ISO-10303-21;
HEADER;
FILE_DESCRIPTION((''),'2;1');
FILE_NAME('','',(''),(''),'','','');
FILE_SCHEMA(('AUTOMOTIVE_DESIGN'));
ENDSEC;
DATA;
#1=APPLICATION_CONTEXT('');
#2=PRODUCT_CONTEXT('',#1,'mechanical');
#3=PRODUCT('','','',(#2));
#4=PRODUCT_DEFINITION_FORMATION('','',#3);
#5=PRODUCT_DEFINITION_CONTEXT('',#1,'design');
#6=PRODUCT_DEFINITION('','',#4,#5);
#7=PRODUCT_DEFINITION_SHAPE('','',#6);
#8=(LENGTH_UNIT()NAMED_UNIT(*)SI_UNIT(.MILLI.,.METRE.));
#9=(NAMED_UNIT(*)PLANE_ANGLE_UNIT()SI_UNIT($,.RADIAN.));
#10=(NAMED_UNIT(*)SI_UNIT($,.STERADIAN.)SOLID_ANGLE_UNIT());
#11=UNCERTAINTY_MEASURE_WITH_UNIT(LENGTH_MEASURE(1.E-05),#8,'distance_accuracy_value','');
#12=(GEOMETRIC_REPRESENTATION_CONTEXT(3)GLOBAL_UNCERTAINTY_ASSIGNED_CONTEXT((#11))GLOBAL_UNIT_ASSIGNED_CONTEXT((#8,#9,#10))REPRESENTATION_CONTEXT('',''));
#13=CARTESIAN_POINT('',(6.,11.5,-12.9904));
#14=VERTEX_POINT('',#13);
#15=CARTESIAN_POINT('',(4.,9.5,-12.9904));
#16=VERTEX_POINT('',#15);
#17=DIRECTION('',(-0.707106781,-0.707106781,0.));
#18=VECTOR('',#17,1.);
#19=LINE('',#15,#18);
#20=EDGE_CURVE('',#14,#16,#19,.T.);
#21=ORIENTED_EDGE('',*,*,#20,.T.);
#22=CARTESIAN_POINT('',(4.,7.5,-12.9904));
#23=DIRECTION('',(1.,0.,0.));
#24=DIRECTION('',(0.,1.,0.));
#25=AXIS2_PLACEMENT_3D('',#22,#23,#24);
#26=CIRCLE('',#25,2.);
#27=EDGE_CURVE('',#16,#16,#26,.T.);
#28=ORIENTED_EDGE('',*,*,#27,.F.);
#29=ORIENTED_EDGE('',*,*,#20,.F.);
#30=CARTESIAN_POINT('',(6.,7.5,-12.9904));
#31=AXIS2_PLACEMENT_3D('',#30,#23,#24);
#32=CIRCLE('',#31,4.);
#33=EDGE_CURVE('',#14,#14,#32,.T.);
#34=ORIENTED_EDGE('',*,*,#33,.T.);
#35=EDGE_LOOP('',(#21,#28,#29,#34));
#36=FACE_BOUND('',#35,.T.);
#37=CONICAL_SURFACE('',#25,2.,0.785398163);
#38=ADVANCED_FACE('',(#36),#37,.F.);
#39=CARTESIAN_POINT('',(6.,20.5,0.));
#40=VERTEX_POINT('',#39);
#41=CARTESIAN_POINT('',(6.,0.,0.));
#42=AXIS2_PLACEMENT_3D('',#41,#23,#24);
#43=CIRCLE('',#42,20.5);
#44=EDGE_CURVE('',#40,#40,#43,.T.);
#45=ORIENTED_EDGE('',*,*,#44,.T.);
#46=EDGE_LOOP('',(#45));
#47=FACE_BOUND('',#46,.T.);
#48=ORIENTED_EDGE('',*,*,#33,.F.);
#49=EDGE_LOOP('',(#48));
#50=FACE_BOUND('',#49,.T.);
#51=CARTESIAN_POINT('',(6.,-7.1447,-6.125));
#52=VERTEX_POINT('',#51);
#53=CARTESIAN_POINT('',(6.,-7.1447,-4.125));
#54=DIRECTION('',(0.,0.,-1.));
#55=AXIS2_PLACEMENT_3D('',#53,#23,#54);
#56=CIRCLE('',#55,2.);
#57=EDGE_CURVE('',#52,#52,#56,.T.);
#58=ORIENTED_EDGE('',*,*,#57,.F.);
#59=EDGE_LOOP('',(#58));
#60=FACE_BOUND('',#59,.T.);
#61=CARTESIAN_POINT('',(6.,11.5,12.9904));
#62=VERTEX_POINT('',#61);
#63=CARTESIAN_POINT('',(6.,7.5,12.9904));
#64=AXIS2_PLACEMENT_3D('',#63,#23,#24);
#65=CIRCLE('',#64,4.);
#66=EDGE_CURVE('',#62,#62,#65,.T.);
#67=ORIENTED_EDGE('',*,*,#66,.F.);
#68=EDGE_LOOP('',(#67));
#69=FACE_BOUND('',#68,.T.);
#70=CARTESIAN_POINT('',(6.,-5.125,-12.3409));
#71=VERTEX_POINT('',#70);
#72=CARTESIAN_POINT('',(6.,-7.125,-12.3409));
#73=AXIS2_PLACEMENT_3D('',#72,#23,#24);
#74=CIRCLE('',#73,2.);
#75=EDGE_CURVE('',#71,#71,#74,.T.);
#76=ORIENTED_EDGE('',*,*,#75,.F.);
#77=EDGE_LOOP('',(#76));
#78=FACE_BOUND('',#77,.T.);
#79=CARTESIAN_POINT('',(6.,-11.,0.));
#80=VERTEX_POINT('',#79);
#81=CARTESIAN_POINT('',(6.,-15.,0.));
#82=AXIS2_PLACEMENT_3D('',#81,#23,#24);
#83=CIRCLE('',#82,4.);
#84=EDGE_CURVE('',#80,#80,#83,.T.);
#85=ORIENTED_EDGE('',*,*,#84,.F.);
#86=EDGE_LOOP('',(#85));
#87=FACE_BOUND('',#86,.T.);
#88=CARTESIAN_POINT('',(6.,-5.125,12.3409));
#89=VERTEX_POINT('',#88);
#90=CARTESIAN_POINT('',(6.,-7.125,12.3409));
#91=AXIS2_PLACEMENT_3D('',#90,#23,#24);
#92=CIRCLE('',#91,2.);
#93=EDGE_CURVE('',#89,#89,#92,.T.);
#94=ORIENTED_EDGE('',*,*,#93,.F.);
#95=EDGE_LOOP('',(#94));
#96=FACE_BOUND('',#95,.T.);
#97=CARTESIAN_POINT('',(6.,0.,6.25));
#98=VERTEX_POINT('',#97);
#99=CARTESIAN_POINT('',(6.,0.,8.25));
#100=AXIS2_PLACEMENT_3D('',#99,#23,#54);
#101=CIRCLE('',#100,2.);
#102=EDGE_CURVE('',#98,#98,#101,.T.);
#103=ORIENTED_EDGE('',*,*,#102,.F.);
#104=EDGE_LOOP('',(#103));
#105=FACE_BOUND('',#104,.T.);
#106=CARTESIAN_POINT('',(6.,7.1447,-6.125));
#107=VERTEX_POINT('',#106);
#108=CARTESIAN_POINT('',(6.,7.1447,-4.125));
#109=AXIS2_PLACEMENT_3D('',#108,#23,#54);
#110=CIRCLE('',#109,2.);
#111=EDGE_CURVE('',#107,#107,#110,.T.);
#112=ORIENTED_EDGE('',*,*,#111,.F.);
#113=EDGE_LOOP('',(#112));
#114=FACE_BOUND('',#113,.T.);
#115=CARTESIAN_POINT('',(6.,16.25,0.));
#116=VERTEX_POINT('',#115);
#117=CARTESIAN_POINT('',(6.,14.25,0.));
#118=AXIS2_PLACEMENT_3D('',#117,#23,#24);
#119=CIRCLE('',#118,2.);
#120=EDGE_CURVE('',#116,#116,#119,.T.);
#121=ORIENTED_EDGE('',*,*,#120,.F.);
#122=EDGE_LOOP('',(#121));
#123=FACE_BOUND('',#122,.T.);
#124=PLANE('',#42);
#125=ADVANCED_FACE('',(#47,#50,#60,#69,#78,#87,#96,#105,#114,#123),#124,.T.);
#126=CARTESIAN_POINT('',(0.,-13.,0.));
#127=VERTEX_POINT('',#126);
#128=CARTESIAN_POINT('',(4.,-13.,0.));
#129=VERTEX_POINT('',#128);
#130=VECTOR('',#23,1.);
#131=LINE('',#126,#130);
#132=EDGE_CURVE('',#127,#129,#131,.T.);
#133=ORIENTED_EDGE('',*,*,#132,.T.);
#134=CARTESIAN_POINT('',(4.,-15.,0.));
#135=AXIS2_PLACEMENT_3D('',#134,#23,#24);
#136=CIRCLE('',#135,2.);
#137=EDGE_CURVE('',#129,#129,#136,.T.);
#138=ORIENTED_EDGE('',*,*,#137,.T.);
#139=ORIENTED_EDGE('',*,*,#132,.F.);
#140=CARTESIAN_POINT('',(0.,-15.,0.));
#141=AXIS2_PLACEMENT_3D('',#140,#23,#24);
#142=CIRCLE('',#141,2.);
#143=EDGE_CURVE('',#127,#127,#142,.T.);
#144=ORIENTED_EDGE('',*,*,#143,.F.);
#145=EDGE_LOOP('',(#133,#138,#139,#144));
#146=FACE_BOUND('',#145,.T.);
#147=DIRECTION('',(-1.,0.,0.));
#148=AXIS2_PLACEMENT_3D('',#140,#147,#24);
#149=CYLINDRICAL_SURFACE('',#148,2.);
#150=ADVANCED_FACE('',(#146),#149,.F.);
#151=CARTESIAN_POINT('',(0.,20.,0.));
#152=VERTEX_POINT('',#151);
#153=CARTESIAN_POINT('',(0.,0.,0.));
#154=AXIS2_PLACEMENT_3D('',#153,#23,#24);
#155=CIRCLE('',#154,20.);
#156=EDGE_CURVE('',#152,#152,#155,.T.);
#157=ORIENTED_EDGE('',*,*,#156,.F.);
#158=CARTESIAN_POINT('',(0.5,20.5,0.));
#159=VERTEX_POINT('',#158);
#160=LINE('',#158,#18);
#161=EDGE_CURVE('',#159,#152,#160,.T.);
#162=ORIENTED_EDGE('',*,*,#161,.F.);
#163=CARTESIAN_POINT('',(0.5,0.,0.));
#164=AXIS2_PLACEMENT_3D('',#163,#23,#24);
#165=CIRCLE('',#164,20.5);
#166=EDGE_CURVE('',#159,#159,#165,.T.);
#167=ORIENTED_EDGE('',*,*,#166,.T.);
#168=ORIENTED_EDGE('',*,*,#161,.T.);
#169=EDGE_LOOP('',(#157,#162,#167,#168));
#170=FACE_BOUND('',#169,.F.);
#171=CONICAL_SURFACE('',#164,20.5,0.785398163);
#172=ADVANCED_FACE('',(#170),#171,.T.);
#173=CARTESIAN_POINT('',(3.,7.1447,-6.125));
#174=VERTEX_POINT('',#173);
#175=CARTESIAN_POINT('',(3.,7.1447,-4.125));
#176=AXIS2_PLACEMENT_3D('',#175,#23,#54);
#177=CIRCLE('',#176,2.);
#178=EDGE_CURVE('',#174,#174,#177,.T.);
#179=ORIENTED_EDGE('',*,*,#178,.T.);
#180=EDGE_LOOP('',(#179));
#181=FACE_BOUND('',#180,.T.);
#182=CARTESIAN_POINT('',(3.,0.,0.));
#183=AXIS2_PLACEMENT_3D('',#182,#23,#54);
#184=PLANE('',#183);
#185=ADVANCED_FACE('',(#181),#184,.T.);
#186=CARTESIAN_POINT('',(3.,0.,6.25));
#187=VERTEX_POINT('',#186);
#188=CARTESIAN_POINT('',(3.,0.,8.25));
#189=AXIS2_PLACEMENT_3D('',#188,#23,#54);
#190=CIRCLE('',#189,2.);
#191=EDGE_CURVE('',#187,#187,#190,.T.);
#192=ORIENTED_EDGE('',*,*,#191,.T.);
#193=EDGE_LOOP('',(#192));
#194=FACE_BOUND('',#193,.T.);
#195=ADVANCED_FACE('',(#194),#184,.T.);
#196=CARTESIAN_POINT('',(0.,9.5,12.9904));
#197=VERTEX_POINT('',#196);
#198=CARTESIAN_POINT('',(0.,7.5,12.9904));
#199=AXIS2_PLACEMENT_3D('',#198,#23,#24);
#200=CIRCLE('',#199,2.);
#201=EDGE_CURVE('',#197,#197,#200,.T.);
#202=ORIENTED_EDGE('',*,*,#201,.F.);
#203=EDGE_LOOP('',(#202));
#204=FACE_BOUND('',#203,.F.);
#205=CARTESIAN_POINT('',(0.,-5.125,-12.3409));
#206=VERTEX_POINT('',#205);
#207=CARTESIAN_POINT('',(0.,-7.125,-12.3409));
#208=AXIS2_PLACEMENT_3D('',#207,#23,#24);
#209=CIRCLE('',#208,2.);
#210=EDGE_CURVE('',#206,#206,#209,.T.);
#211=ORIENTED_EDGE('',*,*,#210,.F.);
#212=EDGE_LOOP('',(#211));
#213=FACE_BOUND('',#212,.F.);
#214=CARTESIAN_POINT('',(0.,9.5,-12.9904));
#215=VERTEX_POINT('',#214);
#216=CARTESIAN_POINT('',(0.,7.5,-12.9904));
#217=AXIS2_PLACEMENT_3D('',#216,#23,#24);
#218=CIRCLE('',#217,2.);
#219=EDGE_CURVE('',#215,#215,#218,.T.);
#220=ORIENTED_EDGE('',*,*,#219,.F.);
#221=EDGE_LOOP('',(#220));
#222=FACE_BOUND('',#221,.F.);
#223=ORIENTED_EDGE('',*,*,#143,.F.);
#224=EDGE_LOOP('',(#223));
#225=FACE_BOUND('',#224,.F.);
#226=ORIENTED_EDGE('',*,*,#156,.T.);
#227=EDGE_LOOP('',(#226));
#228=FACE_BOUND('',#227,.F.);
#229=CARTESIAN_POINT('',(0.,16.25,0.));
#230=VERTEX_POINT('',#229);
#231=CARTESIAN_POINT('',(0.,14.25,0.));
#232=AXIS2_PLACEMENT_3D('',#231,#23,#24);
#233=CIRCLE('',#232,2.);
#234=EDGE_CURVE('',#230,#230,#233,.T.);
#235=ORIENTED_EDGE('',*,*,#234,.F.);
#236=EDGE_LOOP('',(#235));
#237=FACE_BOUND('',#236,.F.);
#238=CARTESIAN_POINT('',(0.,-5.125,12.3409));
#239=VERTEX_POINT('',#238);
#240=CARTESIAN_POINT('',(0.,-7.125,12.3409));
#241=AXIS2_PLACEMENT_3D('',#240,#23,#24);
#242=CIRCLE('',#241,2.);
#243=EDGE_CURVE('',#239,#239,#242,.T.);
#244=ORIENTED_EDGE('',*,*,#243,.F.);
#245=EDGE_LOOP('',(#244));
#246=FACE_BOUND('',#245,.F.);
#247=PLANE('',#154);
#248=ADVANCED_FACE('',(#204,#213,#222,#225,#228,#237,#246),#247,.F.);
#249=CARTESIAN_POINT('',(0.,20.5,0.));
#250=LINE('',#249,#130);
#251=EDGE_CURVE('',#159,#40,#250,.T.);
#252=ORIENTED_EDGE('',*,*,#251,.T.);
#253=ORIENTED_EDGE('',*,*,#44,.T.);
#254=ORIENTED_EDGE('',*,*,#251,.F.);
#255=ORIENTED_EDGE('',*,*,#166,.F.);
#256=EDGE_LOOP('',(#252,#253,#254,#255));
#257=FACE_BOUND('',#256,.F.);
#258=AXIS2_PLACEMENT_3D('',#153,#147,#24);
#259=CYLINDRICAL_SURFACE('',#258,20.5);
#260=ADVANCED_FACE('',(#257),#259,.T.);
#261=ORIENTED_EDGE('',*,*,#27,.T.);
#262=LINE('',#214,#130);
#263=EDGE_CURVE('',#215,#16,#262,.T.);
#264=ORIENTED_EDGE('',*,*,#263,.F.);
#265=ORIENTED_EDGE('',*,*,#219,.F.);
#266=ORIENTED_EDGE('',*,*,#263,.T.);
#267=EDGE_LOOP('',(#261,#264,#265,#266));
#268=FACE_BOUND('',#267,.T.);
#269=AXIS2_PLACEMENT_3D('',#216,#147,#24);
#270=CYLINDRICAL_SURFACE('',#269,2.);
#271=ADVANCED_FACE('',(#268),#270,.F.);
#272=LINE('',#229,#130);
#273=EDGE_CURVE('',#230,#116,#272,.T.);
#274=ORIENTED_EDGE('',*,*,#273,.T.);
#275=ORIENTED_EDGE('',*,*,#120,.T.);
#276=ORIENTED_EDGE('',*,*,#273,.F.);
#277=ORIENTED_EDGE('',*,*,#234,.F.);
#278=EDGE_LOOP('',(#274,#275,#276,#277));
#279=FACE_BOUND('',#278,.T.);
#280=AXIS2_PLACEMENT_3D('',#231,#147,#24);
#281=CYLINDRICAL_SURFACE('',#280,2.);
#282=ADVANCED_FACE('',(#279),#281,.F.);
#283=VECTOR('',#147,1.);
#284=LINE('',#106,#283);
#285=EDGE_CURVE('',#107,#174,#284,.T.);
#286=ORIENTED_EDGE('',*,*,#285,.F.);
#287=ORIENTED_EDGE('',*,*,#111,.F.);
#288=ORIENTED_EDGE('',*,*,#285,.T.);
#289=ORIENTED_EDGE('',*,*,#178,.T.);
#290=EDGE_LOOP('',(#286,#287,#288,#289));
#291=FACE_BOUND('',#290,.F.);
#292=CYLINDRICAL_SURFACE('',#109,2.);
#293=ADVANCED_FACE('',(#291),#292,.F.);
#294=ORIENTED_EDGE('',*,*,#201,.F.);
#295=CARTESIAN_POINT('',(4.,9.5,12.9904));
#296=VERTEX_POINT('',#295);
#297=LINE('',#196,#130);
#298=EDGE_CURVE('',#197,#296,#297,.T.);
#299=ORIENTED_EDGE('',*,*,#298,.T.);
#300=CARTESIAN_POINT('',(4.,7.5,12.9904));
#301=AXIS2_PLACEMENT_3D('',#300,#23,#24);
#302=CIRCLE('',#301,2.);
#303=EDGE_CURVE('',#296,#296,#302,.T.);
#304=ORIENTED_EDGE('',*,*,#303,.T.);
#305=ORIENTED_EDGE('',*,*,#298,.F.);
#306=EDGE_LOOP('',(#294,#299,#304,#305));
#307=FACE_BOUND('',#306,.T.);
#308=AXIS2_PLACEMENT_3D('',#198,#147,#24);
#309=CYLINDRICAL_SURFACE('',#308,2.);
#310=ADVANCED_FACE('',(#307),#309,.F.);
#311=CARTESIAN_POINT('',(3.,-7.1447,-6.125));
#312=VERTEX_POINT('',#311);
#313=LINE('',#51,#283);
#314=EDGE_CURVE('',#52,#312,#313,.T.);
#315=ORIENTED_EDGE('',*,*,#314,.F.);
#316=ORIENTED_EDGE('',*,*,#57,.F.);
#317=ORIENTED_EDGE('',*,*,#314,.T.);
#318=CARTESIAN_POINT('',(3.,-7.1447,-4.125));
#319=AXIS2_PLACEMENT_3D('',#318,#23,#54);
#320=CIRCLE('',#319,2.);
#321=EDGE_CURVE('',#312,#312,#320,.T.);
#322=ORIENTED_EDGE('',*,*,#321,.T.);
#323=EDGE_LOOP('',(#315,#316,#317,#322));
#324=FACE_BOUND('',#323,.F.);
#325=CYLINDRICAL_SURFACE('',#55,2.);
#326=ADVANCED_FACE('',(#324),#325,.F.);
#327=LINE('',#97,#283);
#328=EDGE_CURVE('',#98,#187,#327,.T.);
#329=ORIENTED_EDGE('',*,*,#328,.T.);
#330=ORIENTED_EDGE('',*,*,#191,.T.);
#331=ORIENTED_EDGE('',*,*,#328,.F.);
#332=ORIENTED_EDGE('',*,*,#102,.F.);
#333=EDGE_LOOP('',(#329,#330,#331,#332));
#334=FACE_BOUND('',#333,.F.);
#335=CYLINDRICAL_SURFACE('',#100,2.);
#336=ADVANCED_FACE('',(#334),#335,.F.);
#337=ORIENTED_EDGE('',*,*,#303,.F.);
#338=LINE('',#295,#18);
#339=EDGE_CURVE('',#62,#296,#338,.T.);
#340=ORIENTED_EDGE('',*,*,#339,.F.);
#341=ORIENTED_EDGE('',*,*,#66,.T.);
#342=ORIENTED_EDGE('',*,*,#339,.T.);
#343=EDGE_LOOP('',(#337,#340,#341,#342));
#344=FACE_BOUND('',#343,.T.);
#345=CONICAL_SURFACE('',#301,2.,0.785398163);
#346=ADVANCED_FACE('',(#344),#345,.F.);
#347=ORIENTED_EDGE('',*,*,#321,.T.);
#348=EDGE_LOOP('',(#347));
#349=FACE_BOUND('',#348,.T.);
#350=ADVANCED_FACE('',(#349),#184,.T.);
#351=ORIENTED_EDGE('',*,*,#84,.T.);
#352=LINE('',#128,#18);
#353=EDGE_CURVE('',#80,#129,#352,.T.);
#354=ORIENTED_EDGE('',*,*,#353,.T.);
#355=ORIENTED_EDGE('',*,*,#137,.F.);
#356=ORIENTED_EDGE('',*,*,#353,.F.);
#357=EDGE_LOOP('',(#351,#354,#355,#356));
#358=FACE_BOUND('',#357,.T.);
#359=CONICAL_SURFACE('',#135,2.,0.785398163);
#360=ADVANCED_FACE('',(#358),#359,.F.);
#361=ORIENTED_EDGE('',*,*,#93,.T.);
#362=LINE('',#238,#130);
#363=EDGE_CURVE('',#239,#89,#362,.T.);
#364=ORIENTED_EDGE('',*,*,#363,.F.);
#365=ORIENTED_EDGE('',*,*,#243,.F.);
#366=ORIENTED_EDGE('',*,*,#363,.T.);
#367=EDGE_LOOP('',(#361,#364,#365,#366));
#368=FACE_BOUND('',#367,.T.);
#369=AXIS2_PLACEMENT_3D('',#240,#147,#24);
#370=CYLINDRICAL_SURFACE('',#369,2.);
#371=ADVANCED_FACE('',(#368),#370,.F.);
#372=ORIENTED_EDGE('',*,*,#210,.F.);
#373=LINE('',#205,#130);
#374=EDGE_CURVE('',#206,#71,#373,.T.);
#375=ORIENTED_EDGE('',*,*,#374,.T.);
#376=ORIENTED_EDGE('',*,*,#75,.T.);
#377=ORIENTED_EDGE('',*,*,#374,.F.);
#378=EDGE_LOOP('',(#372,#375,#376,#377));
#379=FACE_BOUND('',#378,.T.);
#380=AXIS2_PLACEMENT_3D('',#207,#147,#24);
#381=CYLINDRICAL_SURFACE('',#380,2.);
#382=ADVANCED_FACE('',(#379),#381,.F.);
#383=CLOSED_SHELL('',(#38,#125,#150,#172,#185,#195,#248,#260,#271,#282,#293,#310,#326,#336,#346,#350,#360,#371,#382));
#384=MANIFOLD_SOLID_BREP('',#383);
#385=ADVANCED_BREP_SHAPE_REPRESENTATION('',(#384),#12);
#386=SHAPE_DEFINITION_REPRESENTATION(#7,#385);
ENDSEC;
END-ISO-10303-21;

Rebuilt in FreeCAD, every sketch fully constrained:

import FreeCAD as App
import Part
import Sketcher


def edges_at(feature, points):
    """Names of the edges that pass closest to the given points."""
    edges = feature.Shape.Edges
    near = lambda p: min(range(len(edges)), key=lambda i: edges[i].distToShape(Part.Vertex(*p))[0])
    return sorted({f"Edge{near(p) + 1}" for p in points})

doc = App.newDocument("Part")
body = doc.addObject("PartDesign::Body", "Body")

sketch1 = body.newObject("Sketcher::SketchObject", "Sketch")
sketch1.AttachmentSupport = (doc.getObject("YZ_Plane"), [""])
sketch1.MapMode = "FlatFace"
sketch1.addGeometry(Part.Circle(App.Vector(0, 0, 0), App.Vector(0, 0, 1), 20.5), False)
sketch1.addGeometry(Part.Circle(App.Vector(-7.125, -12.3409, 0), App.Vector(0, 0, 1), 2), False)
sketch1.addGeometry(Part.Circle(App.Vector(7.5, -12.9904, 0), App.Vector(0, 0, 1), 2), False)
sketch1.addGeometry(Part.Circle(App.Vector(-15, 0, 0), App.Vector(0, 0, 1), 2), False)
sketch1.addGeometry(Part.Circle(App.Vector(-7.125, 12.3409, 0), App.Vector(0, 0, 1), 2), False)
sketch1.addGeometry(Part.Circle(App.Vector(14.25, 0, 0), App.Vector(0, 0, 1), 2), False)
sketch1.addGeometry(Part.Circle(App.Vector(7.5, 12.9904, 0), App.Vector(0, 0, 1), 2), False)
sketch1.addConstraint(Sketcher.Constraint("Coincident", 0, 3, -1, 1))
sketch1.addConstraint(Sketcher.Constraint("Equal", 1, 2))
sketch1.addConstraint(Sketcher.Constraint("Equal", 2, 3))
sketch1.addConstraint(Sketcher.Constraint("Equal", 3, 4))
sketch1.addConstraint(Sketcher.Constraint("Equal", 4, 5))
sketch1.addConstraint(Sketcher.Constraint("Equal", 5, 6))
sketch1.addConstraint(Sketcher.Constraint("Symmetric", 1, 3, 4, 3, -1))
sketch1.addConstraint(Sketcher.Constraint("Symmetric", 2, 3, 6, 3, -1))
sketch1.addConstraint(Sketcher.Constraint("PointOnObject", 3, 3, -1))
sketch1.addConstraint(Sketcher.Constraint("PointOnObject", 5, 3, -1))
sketch1.addConstraint(Sketcher.Constraint("Diameter", 0, 41.0))
sketch1.addConstraint(Sketcher.Constraint("Diameter", 1, 4.0))
sketch1.addConstraint(Sketcher.Constraint("DistanceX", 3, 3, -1, 1, 15.0))
sketch1.addConstraint(Sketcher.Constraint("DistanceX", -1, 1, 2, 3, 7.5))
sketch1.addConstraint(Sketcher.Constraint("DistanceX", -1, 1, 5, 3, 14.25))
sketch1.addConstraint(Sketcher.Constraint("DistanceX", 1, 3, -1, 1, 7.125))
sketch1.addConstraint(Sketcher.Constraint("DistanceY", 1, 3, -1, 1, 12.341))
sketch1.addConstraint(Sketcher.Constraint("DistanceY", 2, 3, -1, 1, 12.9904))
pad1 = body.newObject("PartDesign::Pad", "Pad")
pad1.Profile = sketch1
pad1.Length = 6
doc.recompute()

chamfer = body.newObject("PartDesign::Chamfer", "Chamfer")
chamfer.Base = (pad1, edges_at(pad1, [(0, -20.5, 0)]))
chamfer.Size = 0.5
doc.recompute()

chamfer2 = body.newObject("PartDesign::Chamfer", "Chamfer001")
chamfer2.Base = (chamfer, edges_at(chamfer, [(6, 5.5, 12.99), (6, 5.5, -12.99), (6, -17, 0)]))
chamfer2.Size = 2

sketch2 = body.newObject("Sketcher::SketchObject", "Sketch001")
sketch2.AttachmentSupport = (doc.getObject("YZ_Plane"), [""])
sketch2.MapMode = "FlatFace"
sketch2.AttachmentOffset = App.Placement(App.Vector(0, 0, 6), App.Rotation())
sketch2.addGeometry(Part.Circle(App.Vector(7.1447, -4.125, 0), App.Vector(0, 0, 1), 2), False)
sketch2.addGeometry(Part.Circle(App.Vector(0, 8.25, 0), App.Vector(0, 0, 1), 2), False)
sketch2.addGeometry(Part.Circle(App.Vector(-7.1447, -4.125, 0), App.Vector(0, 0, 1), 2), False)
sketch2.addConstraint(Sketcher.Constraint("Equal", 0, 1))
sketch2.addConstraint(Sketcher.Constraint("Equal", 1, 2))
sketch2.addConstraint(Sketcher.Constraint("Symmetric", 0, 3, 2, 3, -2))
sketch2.addConstraint(Sketcher.Constraint("PointOnObject", 1, 3, -2))
sketch2.addConstraint(Sketcher.Constraint("Diameter", 0, 4.0))
sketch2.addConstraint(Sketcher.Constraint("DistanceY", -1, 1, 1, 3, 8.25))
sketch2.addConstraint(Sketcher.Constraint("DistanceY", 0, 3, -1, 1, 4.125))
sketch2.addConstraint(Sketcher.Constraint("DistanceX", -1, 1, 0, 3, 7.1447))
pocket1 = body.newObject("PartDesign::Pocket", "Pocket")
pocket1.Profile = sketch2
pocket1.Length = 3

doc.recompute()
